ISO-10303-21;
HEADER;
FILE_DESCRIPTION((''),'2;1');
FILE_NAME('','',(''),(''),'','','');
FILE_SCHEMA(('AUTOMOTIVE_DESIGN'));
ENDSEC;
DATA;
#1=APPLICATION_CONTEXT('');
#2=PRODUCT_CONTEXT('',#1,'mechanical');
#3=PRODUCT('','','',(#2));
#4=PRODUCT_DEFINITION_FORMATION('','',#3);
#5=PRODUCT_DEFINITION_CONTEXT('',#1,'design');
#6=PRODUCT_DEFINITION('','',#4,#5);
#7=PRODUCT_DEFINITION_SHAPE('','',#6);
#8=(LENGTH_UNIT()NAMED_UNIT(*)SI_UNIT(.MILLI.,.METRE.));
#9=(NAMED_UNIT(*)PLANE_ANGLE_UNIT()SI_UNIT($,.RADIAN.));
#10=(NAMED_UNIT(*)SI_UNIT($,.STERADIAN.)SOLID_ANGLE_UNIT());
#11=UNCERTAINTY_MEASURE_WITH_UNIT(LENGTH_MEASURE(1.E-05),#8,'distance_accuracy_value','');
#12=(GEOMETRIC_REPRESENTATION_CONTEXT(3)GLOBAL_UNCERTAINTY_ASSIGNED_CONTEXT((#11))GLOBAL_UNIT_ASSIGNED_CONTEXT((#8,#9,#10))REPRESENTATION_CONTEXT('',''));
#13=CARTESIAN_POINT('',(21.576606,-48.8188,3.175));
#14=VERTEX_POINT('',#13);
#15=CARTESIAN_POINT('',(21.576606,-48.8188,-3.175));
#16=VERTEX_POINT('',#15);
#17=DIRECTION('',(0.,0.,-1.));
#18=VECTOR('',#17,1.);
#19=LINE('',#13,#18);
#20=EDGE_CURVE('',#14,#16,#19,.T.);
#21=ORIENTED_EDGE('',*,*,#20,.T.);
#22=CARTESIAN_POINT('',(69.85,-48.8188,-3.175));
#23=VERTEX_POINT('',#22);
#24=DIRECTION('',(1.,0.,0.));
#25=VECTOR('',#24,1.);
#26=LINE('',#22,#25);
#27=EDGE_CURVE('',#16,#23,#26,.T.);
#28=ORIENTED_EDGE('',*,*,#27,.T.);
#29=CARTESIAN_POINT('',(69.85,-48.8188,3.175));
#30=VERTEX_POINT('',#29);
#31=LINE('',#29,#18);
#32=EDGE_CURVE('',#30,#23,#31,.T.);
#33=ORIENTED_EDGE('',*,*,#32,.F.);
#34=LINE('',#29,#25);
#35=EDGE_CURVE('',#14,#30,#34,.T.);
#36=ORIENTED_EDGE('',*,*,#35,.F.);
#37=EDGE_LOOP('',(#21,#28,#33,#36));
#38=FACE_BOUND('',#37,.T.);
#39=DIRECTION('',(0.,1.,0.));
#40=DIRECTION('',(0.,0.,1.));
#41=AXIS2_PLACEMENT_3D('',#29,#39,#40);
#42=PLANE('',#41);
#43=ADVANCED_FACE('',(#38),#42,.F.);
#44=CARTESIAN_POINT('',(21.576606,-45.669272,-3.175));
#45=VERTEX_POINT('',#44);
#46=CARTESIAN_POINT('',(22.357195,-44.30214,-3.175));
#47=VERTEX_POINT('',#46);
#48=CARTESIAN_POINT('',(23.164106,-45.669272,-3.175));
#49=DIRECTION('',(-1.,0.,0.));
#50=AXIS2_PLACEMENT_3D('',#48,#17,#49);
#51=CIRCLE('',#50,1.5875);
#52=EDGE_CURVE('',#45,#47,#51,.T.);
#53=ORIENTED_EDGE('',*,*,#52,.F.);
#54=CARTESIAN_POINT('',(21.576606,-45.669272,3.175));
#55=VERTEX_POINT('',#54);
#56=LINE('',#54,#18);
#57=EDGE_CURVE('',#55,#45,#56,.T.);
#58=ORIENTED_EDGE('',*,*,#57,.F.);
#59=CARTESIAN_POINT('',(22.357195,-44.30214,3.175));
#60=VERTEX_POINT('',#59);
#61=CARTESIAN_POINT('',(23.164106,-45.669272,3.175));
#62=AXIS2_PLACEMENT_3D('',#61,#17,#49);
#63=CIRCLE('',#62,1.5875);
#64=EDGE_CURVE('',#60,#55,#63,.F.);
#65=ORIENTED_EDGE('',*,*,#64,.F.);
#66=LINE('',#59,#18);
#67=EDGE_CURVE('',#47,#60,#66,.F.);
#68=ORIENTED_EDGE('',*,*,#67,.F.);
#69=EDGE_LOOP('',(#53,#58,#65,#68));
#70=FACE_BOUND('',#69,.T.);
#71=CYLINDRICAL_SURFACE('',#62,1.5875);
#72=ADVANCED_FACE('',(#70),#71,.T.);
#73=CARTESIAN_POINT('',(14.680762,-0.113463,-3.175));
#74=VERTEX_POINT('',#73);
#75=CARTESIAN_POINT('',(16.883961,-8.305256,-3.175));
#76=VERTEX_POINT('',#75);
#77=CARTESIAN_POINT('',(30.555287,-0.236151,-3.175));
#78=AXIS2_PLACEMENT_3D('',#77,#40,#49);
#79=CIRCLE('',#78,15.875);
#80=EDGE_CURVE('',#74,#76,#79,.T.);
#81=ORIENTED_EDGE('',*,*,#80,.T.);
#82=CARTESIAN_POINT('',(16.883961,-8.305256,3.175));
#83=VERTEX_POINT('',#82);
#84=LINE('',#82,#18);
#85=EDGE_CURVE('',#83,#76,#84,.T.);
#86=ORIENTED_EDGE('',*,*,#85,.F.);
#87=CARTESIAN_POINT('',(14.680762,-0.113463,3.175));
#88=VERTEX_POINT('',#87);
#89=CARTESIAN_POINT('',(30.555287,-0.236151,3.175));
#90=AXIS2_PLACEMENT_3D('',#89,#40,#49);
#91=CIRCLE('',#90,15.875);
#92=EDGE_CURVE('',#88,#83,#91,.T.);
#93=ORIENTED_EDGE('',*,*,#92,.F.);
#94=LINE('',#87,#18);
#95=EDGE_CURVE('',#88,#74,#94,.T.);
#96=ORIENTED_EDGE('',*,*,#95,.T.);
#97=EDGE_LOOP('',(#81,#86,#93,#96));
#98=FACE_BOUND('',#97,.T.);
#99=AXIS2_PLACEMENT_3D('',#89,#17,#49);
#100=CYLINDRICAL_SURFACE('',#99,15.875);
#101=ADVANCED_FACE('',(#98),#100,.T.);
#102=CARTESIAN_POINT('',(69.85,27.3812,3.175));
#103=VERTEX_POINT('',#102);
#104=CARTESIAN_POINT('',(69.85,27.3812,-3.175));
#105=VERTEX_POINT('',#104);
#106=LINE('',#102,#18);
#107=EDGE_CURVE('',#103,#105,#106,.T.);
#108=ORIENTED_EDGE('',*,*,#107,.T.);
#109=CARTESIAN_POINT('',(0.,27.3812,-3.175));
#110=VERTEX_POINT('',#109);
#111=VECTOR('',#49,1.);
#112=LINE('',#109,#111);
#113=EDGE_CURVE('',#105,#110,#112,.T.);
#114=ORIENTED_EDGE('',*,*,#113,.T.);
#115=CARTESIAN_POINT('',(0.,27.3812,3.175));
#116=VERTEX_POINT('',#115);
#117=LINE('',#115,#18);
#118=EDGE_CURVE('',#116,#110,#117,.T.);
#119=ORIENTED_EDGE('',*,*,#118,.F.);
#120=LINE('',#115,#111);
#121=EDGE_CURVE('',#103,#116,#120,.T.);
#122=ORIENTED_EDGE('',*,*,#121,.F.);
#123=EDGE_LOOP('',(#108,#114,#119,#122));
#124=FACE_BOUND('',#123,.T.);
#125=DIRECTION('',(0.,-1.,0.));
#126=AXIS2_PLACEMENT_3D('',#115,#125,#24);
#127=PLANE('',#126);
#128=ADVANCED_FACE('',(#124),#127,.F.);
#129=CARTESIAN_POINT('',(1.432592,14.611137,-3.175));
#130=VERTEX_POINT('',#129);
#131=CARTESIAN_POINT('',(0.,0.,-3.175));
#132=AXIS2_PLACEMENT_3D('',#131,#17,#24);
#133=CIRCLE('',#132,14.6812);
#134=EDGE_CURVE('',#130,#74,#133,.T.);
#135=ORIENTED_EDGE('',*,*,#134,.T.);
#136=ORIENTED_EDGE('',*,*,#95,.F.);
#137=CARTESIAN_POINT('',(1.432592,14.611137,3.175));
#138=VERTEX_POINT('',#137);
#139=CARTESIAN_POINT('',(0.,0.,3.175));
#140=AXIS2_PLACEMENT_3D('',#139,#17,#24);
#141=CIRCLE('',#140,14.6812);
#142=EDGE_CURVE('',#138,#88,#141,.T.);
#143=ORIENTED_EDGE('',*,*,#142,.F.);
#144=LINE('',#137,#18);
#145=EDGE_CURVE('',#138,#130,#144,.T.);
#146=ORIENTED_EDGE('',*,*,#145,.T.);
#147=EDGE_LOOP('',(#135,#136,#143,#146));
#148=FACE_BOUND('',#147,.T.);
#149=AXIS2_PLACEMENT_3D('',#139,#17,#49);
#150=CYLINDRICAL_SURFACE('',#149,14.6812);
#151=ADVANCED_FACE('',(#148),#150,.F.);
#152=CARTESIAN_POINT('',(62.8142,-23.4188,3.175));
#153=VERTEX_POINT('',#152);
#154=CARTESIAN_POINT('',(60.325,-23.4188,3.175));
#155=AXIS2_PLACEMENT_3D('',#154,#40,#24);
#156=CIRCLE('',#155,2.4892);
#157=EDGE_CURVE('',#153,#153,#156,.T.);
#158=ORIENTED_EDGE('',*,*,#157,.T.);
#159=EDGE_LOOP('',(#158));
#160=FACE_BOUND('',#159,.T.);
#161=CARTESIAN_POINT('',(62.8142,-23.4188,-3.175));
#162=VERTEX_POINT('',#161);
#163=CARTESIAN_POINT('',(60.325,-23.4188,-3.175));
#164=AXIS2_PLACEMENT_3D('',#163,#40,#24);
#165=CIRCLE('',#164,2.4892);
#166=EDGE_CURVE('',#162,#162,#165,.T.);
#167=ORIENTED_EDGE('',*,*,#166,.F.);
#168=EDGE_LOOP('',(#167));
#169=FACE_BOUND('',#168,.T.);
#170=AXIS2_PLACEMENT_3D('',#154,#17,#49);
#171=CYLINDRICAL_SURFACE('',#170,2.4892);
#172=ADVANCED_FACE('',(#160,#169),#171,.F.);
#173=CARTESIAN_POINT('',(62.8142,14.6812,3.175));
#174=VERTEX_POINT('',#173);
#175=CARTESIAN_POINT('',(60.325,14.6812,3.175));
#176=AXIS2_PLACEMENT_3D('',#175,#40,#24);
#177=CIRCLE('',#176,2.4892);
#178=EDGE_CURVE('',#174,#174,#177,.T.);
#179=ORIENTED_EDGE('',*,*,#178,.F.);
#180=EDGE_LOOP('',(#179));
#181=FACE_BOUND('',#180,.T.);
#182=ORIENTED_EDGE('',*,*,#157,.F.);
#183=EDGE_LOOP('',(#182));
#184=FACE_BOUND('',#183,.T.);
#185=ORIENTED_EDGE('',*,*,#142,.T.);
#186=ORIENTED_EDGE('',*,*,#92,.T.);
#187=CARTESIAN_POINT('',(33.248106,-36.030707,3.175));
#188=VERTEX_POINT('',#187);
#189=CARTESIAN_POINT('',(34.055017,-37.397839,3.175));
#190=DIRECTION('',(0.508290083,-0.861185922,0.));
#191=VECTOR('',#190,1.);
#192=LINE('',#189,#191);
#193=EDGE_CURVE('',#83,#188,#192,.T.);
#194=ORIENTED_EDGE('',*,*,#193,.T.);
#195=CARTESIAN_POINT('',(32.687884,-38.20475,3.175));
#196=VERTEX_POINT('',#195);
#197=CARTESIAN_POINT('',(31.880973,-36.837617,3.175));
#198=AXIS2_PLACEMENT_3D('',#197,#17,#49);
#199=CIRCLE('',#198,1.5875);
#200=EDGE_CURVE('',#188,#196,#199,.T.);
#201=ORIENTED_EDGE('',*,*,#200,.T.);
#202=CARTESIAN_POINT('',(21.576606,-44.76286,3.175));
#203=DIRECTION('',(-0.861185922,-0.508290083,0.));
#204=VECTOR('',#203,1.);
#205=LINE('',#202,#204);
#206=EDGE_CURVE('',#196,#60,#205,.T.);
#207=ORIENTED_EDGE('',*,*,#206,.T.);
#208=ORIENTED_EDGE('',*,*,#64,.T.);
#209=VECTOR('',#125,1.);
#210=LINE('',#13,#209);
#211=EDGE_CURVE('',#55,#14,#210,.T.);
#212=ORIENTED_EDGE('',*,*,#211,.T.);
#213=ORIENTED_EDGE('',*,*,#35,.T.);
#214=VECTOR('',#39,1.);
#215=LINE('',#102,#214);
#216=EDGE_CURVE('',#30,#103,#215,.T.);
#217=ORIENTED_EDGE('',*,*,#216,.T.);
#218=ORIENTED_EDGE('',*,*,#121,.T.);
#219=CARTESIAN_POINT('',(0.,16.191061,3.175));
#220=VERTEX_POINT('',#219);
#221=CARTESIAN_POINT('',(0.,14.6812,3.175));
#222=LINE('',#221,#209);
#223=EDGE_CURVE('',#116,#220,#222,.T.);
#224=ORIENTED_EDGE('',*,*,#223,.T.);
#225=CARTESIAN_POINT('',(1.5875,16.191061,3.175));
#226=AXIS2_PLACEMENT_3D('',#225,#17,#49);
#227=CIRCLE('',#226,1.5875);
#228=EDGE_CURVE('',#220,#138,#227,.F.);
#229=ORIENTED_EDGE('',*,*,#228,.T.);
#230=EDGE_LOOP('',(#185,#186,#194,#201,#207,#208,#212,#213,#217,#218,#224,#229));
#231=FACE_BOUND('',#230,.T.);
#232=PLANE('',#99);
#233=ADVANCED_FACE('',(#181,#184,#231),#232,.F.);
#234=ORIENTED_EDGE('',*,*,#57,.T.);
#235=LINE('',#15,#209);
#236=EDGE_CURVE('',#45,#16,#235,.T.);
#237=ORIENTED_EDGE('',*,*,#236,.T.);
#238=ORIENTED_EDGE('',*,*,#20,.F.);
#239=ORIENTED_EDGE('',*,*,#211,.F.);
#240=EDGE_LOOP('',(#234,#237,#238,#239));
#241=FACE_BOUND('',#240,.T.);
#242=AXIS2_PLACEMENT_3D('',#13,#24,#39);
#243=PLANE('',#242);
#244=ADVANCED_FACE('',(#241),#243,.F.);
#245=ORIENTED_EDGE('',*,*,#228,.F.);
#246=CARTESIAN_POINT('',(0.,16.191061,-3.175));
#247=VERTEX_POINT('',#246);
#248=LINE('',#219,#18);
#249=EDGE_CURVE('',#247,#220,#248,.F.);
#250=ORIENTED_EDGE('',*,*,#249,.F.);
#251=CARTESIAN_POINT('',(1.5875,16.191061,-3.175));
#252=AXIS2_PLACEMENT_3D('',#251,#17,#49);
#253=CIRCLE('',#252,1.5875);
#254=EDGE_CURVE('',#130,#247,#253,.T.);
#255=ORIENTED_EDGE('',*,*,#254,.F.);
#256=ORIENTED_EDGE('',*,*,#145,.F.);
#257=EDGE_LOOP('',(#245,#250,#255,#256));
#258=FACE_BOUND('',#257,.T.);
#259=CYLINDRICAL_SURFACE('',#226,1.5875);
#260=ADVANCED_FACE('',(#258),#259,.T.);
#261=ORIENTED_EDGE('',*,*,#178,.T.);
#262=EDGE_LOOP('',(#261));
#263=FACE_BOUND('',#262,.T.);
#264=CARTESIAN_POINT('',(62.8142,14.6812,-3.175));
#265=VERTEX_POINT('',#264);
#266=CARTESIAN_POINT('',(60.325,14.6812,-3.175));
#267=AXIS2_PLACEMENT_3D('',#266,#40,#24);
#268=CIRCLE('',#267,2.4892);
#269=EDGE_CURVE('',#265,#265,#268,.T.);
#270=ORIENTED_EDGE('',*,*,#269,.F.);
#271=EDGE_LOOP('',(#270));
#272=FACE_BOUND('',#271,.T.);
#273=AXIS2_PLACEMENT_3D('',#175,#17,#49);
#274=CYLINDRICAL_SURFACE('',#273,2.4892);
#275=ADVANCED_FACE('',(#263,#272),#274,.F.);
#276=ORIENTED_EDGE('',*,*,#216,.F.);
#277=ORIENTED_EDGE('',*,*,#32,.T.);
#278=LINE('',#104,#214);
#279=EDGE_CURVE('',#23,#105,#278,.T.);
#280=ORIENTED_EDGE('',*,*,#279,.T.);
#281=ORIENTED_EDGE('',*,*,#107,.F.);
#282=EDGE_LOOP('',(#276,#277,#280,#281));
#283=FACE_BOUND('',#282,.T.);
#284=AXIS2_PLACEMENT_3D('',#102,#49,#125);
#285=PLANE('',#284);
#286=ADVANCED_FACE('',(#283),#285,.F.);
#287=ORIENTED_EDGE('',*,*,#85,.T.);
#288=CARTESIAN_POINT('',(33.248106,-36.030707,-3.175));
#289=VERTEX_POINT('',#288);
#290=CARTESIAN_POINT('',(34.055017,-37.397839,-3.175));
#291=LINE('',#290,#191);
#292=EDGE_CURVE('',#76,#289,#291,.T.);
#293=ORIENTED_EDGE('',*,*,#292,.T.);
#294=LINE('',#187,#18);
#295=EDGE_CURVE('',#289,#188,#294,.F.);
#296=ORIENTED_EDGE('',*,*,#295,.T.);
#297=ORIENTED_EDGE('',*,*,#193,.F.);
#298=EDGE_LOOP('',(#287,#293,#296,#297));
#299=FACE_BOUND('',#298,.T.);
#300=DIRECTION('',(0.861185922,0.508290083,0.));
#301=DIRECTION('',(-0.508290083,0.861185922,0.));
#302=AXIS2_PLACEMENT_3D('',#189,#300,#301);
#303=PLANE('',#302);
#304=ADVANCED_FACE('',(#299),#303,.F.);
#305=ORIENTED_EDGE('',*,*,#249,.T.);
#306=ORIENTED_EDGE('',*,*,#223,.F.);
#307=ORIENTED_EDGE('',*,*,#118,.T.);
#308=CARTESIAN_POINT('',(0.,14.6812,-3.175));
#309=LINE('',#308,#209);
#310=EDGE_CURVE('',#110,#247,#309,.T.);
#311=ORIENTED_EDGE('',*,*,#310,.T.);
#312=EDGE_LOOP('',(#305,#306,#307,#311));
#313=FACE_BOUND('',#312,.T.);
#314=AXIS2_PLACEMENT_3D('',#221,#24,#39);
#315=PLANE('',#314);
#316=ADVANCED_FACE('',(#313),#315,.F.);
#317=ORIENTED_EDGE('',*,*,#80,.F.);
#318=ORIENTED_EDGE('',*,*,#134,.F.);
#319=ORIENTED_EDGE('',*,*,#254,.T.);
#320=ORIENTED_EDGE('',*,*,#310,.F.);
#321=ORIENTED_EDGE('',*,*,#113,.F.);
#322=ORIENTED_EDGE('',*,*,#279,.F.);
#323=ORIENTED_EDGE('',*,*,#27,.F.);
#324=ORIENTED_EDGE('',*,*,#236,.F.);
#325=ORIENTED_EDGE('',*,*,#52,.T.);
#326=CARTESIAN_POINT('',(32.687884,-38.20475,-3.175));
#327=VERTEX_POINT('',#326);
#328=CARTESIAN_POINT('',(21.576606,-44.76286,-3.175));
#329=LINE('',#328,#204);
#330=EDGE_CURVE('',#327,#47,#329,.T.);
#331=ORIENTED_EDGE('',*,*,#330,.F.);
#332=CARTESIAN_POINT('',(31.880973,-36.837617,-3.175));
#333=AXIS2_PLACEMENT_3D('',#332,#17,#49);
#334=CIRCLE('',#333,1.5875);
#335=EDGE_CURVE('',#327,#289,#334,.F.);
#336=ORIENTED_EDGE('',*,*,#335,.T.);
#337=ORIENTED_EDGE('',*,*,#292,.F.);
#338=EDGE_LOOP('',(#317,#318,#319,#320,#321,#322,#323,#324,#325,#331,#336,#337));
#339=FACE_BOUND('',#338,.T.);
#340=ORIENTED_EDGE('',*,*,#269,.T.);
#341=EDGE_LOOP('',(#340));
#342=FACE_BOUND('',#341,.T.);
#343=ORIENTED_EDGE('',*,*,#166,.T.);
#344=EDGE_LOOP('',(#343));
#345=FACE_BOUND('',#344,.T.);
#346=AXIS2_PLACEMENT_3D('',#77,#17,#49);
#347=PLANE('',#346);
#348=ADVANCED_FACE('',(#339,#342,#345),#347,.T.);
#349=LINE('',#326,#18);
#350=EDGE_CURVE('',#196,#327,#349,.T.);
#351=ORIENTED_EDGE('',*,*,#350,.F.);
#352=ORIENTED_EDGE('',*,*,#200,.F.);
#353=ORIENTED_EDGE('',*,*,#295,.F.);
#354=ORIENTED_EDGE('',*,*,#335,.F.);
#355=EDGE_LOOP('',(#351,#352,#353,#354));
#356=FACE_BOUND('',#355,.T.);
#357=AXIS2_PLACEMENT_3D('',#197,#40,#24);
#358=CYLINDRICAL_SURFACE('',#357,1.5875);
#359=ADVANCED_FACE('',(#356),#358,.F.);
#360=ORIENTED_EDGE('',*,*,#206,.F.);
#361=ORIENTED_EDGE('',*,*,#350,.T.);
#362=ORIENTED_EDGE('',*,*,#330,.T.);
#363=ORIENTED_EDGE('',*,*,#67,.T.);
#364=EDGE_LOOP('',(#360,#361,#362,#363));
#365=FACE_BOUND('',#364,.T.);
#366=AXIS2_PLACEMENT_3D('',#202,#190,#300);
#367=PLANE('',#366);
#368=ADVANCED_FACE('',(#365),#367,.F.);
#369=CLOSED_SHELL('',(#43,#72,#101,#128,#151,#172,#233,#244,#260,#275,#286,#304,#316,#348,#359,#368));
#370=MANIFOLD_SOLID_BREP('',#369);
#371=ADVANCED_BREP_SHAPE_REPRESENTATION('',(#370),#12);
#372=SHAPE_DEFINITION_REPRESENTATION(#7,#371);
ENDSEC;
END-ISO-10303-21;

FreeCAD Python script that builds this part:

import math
import FreeCAD as App
import Part
import Sketcher
Q = App.Units.Quantity


def edges_at(feature, points):
    """Names of the edges that pass closest to the given points."""
    edges = feature.Shape.Edges
    near = lambda p: min(range(len(edges)), key=lambda i: edges[i].distToShape(Part.Vertex(*p))[0])
    return sorted({f"Edge{near(p) + 1}" for p in points})

doc = App.newDocument("Part")
params = doc.addObject("Spreadsheet::Sheet", "Params")
for row, (alias, value) in enumerate([
    ("sketch1_height", "3 in"),
    ("sketch1_diameter", "0.196 in"),
    ("sketch1_height2", "0.5 in"),
    ("sketch1_radius", "0.578 in"),
    ("sketch1_radius2", "0.625 in"),
    ("pad1_length", "0.25 in"),
    ("fillet_radius", "0.0625 in"),
], start=1):
    params.set(f"A{row}", alias)
    params.set(f"B{row}", "=" + value)
    params.setAlias(f"B{row}", alias)

body = doc.addObject("PartDesign::Body", "Body")

# Sketch on XY plane
sketch1 = body.newObject("Sketcher::SketchObject", "Sketch")
sketch1.AttachmentSupport = (doc.getObject("XY_Plane"), [""])
sketch1.MapMode = "FlatFace"
sketch1.addGeometry(Part.LineSegment(App.Vector(69.8, -48.8, 0), App.Vector(69.8, 27.4, 0)), False)
sketch1.addGeometry(Part.LineSegment(App.Vector(69.8, 27.4, 0), App.Vector(0, 27.4, 0)), False)
sketch1.addGeometry(Part.LineSegment(App.Vector(0, 27.4, 0), App.Vector(0, 14.7, 0)), False)
sketch1.addGeometry(Part.ArcOfCircle(Part.Circle(App.Vector(0, 0, 0), App.Vector(0, 0, 1), 14.7), math.radians(0), math.radians(90)), False)
sketch1.addGeometry(Part.ArcOfCircle(Part.Circle(App.Vector(30.6, -0.2, 0), App.Vector(0, 0, 1), 15.9), math.radians(180), math.radians(211)), False)
sketch1.addGeometry(Part.LineSegment(App.Vector(16.9, -8.3, 0), App.Vector(34.1, -37.4, 0)), False)
sketch1.addGeometry(Part.LineSegment(App.Vector(34.1, -37.4, 0), App.Vector(21.6, -44.8, 0)), False)
sketch1.addGeometry(Part.LineSegment(App.Vector(21.6, -44.8, 0), App.Vector(21.6, -48.8, 0)), False)
sketch1.addGeometry(Part.LineSegment(App.Vector(21.6, -48.8, 0), App.Vector(69.8, -48.8, 0)), False)
sketch1.addGeometry(Part.Circle(App.Vector(60.3, -23.4, 0), App.Vector(0, 0, 1), 2.5), False)
sketch1.addGeometry(Part.Circle(App.Vector(60.3, 14.7, 0), App.Vector(0, 0, 1), 2.5), False)
sketch1.addConstraint(Sketcher.Constraint("Coincident", 0, 2, 1, 1))
sketch1.addConstraint(Sketcher.Constraint("Coincident", 1, 2, 2, 1))
sketch1.addConstraint(Sketcher.Constraint("Coincident", 2, 2, 3, 2))
sketch1.addConstraint(Sketcher.Constraint("Tangent", 3, 1, 4, 1))
sketch1.addConstraint(Sketcher.Constraint("Tangent", 4, 2, 5, 1))
sketch1.addConstraint(Sketcher.Constraint("Coincident", 5, 2, 6, 1))
sketch1.addConstraint(Sketcher.Constraint("Coincident", 6, 2, 7, 1))
sketch1.addConstraint(Sketcher.Constraint("Coincident", 7, 2, 8, 1))
sketch1.addConstraint(Sketcher.Constraint("Coincident", 8, 2, 0, 1))
sketch1.addConstraint(Sketcher.Constraint("Vertical", 0))
sketch1.addConstraint(Sketcher.Constraint("Horizontal", 1))
sketch1.addConstraint(Sketcher.Constraint("Vertical", 2))
sketch1.addConstraint(Sketcher.Constraint("Vertical", 7))
sketch1.addConstraint(Sketcher.Constraint("Horizontal", 8))
sketch1.addConstraint(Sketcher.Constraint("Coincident", 3, 3, -1, 1))
sketch1.addConstraint(Sketcher.Constraint("Equal", 9, 10))
sketch1.addConstraint(Sketcher.Constraint("PointOnObject", 1, 2, -2))
sketch1.addConstraint(Sketcher.Constraint("Perpendicular", 5, 6))
sketch1.addConstraint(Sketcher.Constraint("Horizontal", 10, 3, 2, 2))
sketch1.addConstraint(Sketcher.Constraint("Vertical", 9, 3, 10, 3))
sketch1.addConstraint(Sketcher.Constraint("DistanceY", 0, 1, 0, 2, Q("3 in")))
sketch1.addConstraint(Sketcher.Constraint("Diameter", 9, Q("0.196 in")))
sketch1.addConstraint(Sketcher.Constraint("DistanceY", 2, 2, 2, 1, Q("0.5 in")))
sketch1.addConstraint(Sketcher.Constraint("Radius", 3, Q("0.578 in")))
sketch1.addConstraint(Sketcher.Constraint("Radius", 4, Q("0.625 in")))
sketch1.addConstraint(Sketcher.Constraint("DistanceY", 9, 3, 0, 2, Q("2 in")))
sketch1.addConstraint(Sketcher.Constraint("DistanceX", 1, 2, 1, 1, Q("2.75 in")))
sketch1.addConstraint(Sketcher.Constraint("Distance", 5, Q("1.33 in")))
sketch1.addConstraint(Sketcher.Constraint("Angle", 5, Q("-59.45 deg")))
sketch1.addConstraint(Sketcher.Constraint("DistanceX", -1, 1, 9, 3, Q("2.375 in")))
sketch1.addConstraint(Sketcher.Constraint("Distance", 6, 14.489799))
sketch1.addConstraint(Sketcher.Constraint("DistanceY", 7, 2, 7, 1, 4.05594))
sketch1.setExpression("Constraints[20]", "Params.sketch1_height")
sketch1.setExpression("Constraints[21]", "Params.sketch1_diameter")
sketch1.setExpression("Constraints[22]", "Params.sketch1_height2")
sketch1.setExpression("Constraints[23]", "Params.sketch1_radius")
sketch1.setExpression("Constraints[24]", "Params.sketch1_radius2")
pad1 = body.newObject("PartDesign::Pad", "Pad")
pad1.Profile = sketch1
pad1.setExpression("Length", "Params.pad1_length")
pad1.Midplane = True
doc.recompute()

fillet = body.newObject("PartDesign::Fillet", "Fillet")
fillet.Base = (pad1, edges_at(pad1, [(21.577, -44.763, 0), (34.055, -37.398, 0), (0, 14.681, 0)]))
fillet.setExpression("Radius", "Params.fillet_radius")

doc.recompute()
